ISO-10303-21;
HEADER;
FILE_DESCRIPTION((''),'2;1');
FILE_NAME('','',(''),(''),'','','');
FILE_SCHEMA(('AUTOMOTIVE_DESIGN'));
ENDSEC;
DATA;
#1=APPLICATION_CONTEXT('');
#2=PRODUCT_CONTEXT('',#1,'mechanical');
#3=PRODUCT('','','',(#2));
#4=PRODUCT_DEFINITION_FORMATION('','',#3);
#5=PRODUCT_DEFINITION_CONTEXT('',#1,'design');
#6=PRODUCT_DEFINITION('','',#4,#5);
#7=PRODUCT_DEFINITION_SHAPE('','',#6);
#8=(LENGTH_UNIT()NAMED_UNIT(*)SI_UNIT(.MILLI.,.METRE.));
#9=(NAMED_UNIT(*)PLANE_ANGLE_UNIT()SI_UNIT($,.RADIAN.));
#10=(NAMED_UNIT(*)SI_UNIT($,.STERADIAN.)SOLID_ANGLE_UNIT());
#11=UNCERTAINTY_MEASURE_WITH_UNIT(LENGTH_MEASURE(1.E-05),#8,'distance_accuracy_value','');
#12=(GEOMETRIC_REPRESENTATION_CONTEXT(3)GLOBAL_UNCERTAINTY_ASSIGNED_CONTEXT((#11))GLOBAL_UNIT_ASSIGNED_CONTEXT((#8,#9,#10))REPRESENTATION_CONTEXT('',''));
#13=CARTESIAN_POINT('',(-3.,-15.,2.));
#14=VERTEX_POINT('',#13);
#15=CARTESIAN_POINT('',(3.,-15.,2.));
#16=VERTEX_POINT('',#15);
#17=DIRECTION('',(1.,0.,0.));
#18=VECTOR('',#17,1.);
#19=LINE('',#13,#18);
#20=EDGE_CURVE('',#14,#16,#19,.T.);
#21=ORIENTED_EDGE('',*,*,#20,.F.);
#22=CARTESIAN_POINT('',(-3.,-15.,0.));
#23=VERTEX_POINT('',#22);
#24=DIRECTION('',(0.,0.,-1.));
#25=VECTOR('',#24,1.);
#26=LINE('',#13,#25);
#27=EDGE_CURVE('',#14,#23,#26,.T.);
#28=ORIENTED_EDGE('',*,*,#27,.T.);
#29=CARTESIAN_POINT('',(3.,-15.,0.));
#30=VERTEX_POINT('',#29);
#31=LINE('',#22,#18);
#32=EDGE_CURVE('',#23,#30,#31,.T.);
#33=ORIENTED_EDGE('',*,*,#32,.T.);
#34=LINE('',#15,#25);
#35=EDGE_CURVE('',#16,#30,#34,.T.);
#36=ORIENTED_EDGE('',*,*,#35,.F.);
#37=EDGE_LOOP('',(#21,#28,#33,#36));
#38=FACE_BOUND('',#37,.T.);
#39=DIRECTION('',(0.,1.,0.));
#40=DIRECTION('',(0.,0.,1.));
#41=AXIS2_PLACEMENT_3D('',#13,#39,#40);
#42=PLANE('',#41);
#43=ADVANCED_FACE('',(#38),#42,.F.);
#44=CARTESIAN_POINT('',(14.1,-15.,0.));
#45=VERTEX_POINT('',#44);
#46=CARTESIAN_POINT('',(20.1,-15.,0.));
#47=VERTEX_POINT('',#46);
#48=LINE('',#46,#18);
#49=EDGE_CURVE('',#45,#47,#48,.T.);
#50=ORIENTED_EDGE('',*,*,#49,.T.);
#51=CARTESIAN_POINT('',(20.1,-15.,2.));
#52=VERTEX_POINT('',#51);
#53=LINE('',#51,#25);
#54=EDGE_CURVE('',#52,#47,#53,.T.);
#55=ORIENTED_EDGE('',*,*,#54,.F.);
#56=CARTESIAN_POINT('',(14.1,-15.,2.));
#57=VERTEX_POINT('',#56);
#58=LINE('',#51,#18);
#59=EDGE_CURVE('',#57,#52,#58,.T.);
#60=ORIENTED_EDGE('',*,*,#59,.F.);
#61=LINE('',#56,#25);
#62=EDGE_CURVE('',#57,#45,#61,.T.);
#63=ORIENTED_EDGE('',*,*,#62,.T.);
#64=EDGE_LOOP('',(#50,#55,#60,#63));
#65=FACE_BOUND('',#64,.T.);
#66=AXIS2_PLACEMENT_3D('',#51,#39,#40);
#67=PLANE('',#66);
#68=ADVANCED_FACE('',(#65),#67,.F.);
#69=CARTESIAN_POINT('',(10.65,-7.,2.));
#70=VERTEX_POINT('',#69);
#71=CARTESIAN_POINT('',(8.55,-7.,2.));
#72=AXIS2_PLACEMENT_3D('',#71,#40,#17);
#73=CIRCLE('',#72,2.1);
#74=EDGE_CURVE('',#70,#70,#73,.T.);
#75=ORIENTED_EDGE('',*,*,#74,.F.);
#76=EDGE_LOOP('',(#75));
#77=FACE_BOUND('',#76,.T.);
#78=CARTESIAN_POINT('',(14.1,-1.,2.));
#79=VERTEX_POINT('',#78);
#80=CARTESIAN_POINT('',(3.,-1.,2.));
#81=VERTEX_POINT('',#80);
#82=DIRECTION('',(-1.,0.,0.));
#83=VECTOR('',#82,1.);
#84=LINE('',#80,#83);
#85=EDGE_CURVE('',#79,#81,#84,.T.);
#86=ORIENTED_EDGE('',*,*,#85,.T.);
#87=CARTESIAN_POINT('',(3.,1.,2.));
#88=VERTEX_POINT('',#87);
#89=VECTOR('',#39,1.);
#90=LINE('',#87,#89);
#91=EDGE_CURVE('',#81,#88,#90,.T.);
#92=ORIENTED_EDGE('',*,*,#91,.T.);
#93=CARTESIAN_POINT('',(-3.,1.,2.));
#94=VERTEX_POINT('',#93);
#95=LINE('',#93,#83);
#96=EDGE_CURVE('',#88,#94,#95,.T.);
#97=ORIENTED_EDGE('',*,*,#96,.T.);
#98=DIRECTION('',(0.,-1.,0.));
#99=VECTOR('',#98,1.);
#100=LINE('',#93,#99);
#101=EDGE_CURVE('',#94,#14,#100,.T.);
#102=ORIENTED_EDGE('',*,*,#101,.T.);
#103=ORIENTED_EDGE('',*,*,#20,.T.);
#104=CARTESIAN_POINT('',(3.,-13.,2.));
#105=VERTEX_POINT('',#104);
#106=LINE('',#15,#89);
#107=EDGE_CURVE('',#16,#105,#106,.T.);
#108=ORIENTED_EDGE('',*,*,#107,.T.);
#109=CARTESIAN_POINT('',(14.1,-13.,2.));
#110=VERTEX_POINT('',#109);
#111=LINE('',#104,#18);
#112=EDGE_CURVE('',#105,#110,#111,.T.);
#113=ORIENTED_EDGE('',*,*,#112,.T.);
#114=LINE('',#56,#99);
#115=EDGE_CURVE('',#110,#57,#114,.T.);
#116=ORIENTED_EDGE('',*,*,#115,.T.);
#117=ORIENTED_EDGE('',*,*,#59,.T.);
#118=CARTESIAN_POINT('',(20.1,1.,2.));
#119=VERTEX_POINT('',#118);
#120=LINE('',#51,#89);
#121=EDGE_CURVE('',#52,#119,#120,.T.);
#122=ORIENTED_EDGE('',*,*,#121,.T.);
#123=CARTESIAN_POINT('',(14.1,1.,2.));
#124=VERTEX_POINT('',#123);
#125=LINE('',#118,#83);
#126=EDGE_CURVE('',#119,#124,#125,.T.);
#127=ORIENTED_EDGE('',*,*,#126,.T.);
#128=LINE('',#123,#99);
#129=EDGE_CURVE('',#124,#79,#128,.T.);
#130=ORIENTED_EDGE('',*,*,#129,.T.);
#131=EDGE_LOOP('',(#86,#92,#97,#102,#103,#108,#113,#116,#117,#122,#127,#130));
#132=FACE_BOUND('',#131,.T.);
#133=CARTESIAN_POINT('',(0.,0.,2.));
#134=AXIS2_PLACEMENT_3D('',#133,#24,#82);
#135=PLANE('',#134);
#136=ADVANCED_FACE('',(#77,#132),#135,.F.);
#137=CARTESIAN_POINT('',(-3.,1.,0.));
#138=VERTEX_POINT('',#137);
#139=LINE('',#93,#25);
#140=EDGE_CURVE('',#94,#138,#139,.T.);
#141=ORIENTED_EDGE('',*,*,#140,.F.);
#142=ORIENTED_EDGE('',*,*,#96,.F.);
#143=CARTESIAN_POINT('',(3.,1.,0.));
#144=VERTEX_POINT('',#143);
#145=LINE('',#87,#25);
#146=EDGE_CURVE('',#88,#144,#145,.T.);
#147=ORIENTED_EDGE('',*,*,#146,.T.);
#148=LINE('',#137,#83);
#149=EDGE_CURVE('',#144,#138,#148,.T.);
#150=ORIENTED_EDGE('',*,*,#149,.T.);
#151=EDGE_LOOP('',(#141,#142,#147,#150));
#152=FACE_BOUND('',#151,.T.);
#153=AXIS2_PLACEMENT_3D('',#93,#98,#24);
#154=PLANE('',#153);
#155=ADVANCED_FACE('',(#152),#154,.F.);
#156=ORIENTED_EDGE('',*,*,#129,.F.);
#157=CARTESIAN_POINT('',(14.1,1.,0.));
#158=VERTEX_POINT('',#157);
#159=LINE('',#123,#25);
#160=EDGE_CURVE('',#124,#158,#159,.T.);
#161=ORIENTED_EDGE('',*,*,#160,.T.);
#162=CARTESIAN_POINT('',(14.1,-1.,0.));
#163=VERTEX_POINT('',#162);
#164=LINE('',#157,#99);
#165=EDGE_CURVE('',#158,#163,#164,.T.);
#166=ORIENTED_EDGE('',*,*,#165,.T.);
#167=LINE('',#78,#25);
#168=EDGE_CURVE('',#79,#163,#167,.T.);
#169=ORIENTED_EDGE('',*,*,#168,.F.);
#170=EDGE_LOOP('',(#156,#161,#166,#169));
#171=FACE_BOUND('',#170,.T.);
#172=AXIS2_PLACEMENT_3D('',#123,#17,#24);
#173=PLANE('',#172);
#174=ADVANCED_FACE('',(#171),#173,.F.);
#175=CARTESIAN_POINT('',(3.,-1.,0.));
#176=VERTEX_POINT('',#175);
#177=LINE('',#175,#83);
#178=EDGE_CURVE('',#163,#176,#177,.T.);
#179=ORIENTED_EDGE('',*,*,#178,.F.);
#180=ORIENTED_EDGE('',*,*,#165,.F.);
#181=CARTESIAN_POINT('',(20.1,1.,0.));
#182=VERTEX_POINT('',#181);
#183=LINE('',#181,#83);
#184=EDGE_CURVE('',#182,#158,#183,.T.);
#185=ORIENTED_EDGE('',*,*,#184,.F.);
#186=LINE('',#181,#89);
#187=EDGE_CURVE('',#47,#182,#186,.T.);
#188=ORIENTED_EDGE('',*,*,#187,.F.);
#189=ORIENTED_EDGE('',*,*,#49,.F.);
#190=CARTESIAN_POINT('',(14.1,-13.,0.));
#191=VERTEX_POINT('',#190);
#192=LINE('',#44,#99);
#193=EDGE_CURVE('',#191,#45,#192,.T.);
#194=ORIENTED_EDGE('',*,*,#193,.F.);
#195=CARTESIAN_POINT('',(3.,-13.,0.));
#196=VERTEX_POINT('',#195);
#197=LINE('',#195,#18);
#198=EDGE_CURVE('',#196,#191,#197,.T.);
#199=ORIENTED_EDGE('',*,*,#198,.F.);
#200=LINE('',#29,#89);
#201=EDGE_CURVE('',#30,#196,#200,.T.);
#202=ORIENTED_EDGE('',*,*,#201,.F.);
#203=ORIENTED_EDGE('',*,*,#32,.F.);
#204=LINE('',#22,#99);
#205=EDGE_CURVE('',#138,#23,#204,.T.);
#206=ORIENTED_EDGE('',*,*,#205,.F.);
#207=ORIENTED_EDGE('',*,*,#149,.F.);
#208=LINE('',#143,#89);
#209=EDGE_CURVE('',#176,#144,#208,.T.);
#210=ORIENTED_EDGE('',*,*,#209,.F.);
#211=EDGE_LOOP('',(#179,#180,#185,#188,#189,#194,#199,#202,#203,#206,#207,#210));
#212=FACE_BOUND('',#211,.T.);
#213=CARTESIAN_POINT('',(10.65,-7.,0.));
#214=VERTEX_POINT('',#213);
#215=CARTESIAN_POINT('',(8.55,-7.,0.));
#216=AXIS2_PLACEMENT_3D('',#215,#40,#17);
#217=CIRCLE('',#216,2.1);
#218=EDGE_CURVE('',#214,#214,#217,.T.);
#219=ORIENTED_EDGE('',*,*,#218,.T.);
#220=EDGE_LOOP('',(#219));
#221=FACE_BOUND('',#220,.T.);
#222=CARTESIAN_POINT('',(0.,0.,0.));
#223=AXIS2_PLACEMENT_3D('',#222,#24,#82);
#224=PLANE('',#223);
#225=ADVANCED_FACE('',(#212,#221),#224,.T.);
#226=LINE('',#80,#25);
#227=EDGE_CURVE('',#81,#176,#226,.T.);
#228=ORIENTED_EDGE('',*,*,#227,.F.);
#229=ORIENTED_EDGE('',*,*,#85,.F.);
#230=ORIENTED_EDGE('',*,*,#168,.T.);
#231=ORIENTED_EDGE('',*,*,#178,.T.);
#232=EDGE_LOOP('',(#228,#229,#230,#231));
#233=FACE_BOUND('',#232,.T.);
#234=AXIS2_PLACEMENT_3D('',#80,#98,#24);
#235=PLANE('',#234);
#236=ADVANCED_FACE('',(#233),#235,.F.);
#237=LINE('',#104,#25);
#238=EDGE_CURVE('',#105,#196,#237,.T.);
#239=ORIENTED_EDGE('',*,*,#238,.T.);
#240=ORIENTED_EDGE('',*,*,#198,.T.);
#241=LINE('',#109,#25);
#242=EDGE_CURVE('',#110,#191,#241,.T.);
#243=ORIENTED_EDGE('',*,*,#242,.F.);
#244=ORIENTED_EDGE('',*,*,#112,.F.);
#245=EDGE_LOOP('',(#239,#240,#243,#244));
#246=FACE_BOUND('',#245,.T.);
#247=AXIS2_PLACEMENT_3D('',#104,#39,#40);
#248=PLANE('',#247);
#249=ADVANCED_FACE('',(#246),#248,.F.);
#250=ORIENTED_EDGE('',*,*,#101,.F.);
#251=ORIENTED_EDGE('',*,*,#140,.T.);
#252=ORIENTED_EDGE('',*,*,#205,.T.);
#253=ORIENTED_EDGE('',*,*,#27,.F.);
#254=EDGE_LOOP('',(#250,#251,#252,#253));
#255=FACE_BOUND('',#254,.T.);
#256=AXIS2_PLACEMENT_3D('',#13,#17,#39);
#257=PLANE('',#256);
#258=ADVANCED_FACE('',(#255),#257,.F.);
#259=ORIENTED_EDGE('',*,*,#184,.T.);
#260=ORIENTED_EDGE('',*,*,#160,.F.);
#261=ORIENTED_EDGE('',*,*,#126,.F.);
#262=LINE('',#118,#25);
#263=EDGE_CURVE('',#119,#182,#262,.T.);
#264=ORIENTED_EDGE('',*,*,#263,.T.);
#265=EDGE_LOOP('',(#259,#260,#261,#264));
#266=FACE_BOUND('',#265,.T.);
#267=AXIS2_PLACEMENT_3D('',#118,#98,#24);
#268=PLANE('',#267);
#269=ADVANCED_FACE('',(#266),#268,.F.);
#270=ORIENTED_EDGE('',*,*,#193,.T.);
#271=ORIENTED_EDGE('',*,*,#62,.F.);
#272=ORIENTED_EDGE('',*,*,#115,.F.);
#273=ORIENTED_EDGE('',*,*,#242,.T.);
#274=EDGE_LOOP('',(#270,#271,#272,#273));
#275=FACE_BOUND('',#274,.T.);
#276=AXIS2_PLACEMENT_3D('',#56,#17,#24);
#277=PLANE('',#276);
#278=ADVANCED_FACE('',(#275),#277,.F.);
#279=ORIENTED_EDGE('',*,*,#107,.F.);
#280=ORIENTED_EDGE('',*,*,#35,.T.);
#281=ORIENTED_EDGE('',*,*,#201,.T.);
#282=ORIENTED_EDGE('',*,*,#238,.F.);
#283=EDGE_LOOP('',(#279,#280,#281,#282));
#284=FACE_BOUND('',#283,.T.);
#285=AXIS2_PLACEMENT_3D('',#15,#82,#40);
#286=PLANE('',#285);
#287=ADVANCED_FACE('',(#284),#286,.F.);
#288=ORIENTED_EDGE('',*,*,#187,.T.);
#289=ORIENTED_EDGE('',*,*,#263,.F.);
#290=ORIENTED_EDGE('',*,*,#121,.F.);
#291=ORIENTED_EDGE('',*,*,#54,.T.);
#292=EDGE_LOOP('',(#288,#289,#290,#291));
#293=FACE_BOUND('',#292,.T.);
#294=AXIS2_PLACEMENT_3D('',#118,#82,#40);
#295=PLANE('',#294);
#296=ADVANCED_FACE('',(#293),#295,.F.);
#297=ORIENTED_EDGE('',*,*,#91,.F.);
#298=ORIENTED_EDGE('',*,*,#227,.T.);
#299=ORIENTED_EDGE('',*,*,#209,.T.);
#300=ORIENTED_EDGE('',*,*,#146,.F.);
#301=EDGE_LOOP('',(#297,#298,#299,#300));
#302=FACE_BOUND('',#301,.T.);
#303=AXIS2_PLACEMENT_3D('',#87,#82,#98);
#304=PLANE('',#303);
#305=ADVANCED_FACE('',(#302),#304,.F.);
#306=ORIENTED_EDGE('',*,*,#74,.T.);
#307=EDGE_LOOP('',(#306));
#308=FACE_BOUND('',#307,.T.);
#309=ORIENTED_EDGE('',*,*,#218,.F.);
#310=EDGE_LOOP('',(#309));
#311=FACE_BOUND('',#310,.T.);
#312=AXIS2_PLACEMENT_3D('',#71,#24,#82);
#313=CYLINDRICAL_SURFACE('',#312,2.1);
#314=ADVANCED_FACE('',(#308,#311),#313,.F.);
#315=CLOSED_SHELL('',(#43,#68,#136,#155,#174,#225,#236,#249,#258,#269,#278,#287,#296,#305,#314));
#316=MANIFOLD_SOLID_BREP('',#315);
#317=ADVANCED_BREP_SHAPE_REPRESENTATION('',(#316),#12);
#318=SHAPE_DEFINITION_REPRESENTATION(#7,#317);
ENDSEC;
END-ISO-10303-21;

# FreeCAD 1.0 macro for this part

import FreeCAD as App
import Part
import Sketcher
from FreeCAD import Vector
Q = App.Units.Quantity


def add_polygon(sketch, points):
    """Adds a closed chain of lines whose ends are joined by coincident constraints."""
    first, n = sketch.GeometryCount, len(points)
    for a, b in zip(points, points[1:] + points[:1]):
        sketch.addGeometry(Part.LineSegment(App.Vector(*a, 0), App.Vector(*b, 0)), False)
    for i in range(n):
        sketch.addConstraint(Sketcher.Constraint("Coincident", first + i, 2, first + (i + 1) % n, 1))

doc = App.newDocument("Part")
params = doc.addObject("Spreadsheet::Sheet", "Params")
for row, (alias, value) in enumerate([
    ("sketch1_diameter", "4.2 mm"),
    ("sketch1_width", "6 mm"),
    ("sketch1_height", "16 mm"),
    ("sketch1_height2", "2 mm"),
    ("sketch1_width2", "11.1 mm"),
    ("pad1_length", "2 mm"),
], start=1):
    params.set(f"A{row}", alias)
    params.set(f"B{row}", "=" + value)
    params.setAlias(f"B{row}", alias)

body = doc.addObject("PartDesign::Body", "Body")

# Sketch on XY plane
sketch1 = body.newObject("Sketcher::SketchObject", "Sketch")
sketch1.AttachmentSupport = (doc.getObject("XY_Plane"), [""])
sketch1.MapMode = "FlatFace"
add_polygon(sketch1, [(3, 1), (-3, 1), (-3, -15), (3, -15), (3, -13), (14.1, -13), (14.1, -15), (20.1, -15), (20.1, 1), (14.1, 1), (14.1, -1), (3, -1)])  # lines 0-11
sketch1.addGeometry(Part.Circle(Vector(8.6, -7, 0), Vector(0, 0, 1), 2.1), False)  # 12
sketch1.addConstraint(Sketcher.Constraint("Horizontal", 0))
sketch1.addConstraint(Sketcher.Constraint("Vertical", 1))
sketch1.addConstraint(Sketcher.Constraint("Horizontal", 2))
sketch1.addConstraint(Sketcher.Constraint("Vertical", 3))
sketch1.addConstraint(Sketcher.Constraint("Horizontal", 4))
sketch1.addConstraint(Sketcher.Constraint("Vertical", 5))
sketch1.addConstraint(Sketcher.Constraint("Horizontal", 6))
sketch1.addConstraint(Sketcher.Constraint("Vertical", 7))
sketch1.addConstraint(Sketcher.Constraint("Horizontal", 8))
sketch1.addConstraint(Sketcher.Constraint("Vertical", 9))
sketch1.addConstraint(Sketcher.Constraint("Horizontal", 10))
sketch1.addConstraint(Sketcher.Constraint("Vertical", 11))
sketch1.addConstraint(Sketcher.Constraint("Symmetric", 0, 2, 10, 2, -1, 1))
sketch1.addConstraint(Sketcher.Constraint("Horizontal", 2, 2, 5, 2))
sketch1.addConstraint(Sketcher.Constraint("Horizontal", 0, 2, 7, 2))
sketch1.addConstraint(Sketcher.Constraint("Vertical", 5, 2, 8, 2))
sketch1.addConstraint(Sketcher.Constraint("Vertical", 3, 2, 10, 2))
sketch1.addConstraint(Sketcher.Constraint("Equal", 2, 6))
sketch1.addConstraint(Sketcher.Constraint("Equal", 5, 9))
sketch1.addConstraint(Sketcher.Constraint("Diameter", 12, Q("4.2 mm")))
sketch1.addConstraint(Sketcher.Constraint("DistanceX", 0, 2, 0, 1, Q("6 mm")))
sketch1.addConstraint(Sketcher.Constraint("DistanceY", 1, 2, 1, 1, Q("16 mm")))
sketch1.addConstraint(Sketcher.Constraint("DistanceY", 3, 1, 3, 2, Q("2 mm")))
sketch1.addConstraint(Sketcher.Constraint("DistanceX", 4, 1, 4, 2, Q("11.1 mm")))
sketch1.addConstraint(Sketcher.Constraint("DistanceY", 12, 3, -1, 1, Q("7 mm")))
sketch1.addConstraint(Sketcher.Constraint("DistanceX", -1, 1, 12, 3, Q("8.55 mm")))
sketch1.setExpression("Constraints[31]", "Params.sketch1_diameter")
sketch1.setExpression("Constraints[32]", "Params.sketch1_width")
sketch1.setExpression("Constraints[33]", "Params.sketch1_height")
sketch1.setExpression("Constraints[34]", "Params.sketch1_height2")
sketch1.setExpression("Constraints[35]", "Params.sketch1_width2")
pad1 = body.newObject("PartDesign::Pad", "Pad")
pad1.Profile = sketch1
pad1.setExpression("Length", "Params.pad1_length")

doc.recompute()
